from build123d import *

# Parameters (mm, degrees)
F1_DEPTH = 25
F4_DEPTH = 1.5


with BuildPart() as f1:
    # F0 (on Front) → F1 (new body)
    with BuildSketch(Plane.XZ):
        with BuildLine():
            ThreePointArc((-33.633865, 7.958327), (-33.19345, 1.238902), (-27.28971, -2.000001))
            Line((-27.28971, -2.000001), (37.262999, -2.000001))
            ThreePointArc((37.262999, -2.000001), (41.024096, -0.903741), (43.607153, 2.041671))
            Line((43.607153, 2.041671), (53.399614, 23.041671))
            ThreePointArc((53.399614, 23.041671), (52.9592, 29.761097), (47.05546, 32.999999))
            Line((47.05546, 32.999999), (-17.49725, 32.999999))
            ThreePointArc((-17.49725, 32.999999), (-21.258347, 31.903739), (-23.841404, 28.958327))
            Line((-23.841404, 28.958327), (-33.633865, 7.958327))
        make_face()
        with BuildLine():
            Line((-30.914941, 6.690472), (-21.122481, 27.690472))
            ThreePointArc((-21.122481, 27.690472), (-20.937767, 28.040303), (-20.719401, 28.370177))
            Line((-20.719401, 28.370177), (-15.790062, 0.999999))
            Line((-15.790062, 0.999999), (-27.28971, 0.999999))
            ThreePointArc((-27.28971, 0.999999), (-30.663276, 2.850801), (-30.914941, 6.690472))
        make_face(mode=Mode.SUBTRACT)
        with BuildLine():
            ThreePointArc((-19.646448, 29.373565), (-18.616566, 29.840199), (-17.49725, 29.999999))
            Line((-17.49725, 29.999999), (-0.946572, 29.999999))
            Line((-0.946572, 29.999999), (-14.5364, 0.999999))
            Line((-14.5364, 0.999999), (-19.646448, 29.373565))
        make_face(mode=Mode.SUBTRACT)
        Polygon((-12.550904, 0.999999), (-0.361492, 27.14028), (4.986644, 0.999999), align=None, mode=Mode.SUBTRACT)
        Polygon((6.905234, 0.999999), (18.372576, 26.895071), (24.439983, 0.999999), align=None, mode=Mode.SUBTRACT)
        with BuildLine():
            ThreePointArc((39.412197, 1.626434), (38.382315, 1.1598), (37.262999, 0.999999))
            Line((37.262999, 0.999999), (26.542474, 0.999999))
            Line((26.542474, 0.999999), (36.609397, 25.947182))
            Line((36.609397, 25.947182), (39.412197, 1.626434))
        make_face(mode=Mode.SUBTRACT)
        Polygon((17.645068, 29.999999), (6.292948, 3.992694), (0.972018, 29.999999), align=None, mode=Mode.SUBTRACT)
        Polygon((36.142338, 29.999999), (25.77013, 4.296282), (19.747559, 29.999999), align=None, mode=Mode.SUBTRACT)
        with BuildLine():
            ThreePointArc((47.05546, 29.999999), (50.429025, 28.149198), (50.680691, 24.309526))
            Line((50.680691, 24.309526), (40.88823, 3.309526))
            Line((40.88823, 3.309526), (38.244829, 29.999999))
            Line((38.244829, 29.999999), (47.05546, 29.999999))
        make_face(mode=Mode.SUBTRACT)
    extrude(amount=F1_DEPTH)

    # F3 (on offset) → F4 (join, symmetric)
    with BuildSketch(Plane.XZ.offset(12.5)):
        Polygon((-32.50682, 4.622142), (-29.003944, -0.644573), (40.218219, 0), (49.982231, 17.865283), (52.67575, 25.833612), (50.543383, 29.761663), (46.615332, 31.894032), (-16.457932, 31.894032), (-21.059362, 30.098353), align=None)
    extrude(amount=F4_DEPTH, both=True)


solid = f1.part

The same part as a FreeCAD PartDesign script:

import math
import FreeCAD as App
import Part
import Sketcher
Q = App.Units.Quantity


def add_polygon(sketch, points):
    """Adds a closed chain of lines whose ends are joined by coincident constraints."""
    first, n = sketch.GeometryCount, len(points)
    for a, b in zip(points, points[1:] + points[:1]):
        sketch.addGeometry(Part.LineSegment(App.Vector(*a, 0), App.Vector(*b, 0)), False)
    for i in range(n):
        sketch.addConstraint(Sketcher.Constraint("Coincident", first + i, 2, first + (i + 1) % n, 1))

doc = App.newDocument("Part")
body = doc.addObject("PartDesign::Body", "Body")

sketch1 = body.newObject("Sketcher::SketchObject", "Sketch")
sketch1.AttachmentSupport = (doc.getObject("XZ_Plane"), [""])
sketch1.MapMode = "FlatFace"
sketch1.addGeometry(Part.ArcOfCircle(Part.Circle(App.Vector(-27.3, 5, 0), App.Vector(0, 0, 1), 7), math.radians(155), math.radians(270)), False)
sketch1.addGeometry(Part.LineSegment(App.Vector(-27.3, -2, 0), App.Vector(37.3, -2, 0)), False)
sketch1.addGeometry(Part.ArcOfCircle(Part.Circle(App.Vector(37.3, 5, 0), App.Vector(0, 0, 1), 7), math.radians(-90), math.radians(-25)), False)
sketch1.addGeometry(Part.LineSegment(App.Vector(43.6, 2, 0), App.Vector(53.4, 23, 0)), False)
sketch1.addGeometry(Part.ArcOfCircle(Part.Circle(App.Vector(47.1, 26, 0), App.Vector(0, 0, 1), 7), math.radians(-25), math.radians(90)), False)
sketch1.addGeometry(Part.LineSegment(App.Vector(47.1, 33, 0), App.Vector(-17.5, 33, 0)), False)
sketch1.addGeometry(Part.ArcOfCircle(Part.Circle(App.Vector(-17.5, 26, 0), App.Vector(0, 0, 1), 7), math.radians(90), math.radians(155)), False)
sketch1.addGeometry(Part.LineSegment(App.Vector(-23.8, 29, 0), App.Vector(-33.6, 8, 0)), False)
sketch1.addGeometry(Part.ArcOfCircle(Part.Circle(App.Vector(-27.3, 5, 0), App.Vector(0, 0, 1), 4), math.radians(155), math.radians(270)), False)
sketch1.addGeometry(Part.LineSegment(App.Vector(-30.9, 6.7, 0), App.Vector(-21.1, 27.7, 0)), False)
sketch1.addGeometry(Part.ArcOfCircle(Part.Circle(App.Vector(-17.5, 26, 0), App.Vector(0, 0, 1), 4), math.radians(143.66), math.radians(155)), False)
sketch1.addGeometry(Part.LineSegment(App.Vector(-20.7, 28.4, 0), App.Vector(-15.8, 1, 0)), False)
sketch1.addGeometry(Part.LineSegment(App.Vector(-15.8, 1, 0), App.Vector(-27.3, 1, 0)), False)
add_polygon(sketch1, [(5, 1), (-12.6, 1), (-0.4, 27.1)])
add_polygon(sketch1, [(24.4, 1), (6.9, 1), (18.4, 26.9)])
sketch1.addGeometry(Part.LineSegment(App.Vector(36.6, 25.9, 0), App.Vector(39.4, 1.6, 0)), False)
sketch1.addGeometry(Part.ArcOfCircle(Part.Circle(App.Vector(37.3, 5, 0), App.Vector(0, 0, 1), 4), math.radians(-90), math.radians(-57)), False)
sketch1.addGeometry(Part.LineSegment(App.Vector(37.3, 1, 0), App.Vector(26.5, 1, 0)), False)
sketch1.addGeometry(Part.LineSegment(App.Vector(26.5, 1, 0), App.Vector(36.6, 25.9, 0)), False)
sketch1.addGeometry(Part.LineSegment(App.Vector(-14.5, 1, 0), App.Vector(-19.6, 29.4, 0)), False)
sketch1.addGeometry(Part.ArcOfCircle(Part.Circle(App.Vector(-17.5, 26, 0), App.Vector(0, 0, 1), 4), math.radians(90), math.radians(123)), False)
sketch1.addGeometry(Part.LineSegment(App.Vector(-17.5, 30, 0), App.Vector(-0.9, 30, 0)), False)
sketch1.addGeometry(Part.LineSegment(App.Vector(-0.9, 30, 0), App.Vector(-14.5, 1, 0)), False)
add_polygon(sketch1, [(1, 30), (17.6, 30), (6.3, 4)])
add_polygon(sketch1, [(19.7, 30), (36.1, 30), (25.8, 4.3)])
sketch1.addGeometry(Part.LineSegment(App.Vector(38.2, 30, 0), App.Vector(47.1, 30, 0)), False)
sketch1.addGeometry(Part.ArcOfCircle(Part.Circle(App.Vector(47.1, 26, 0), App.Vector(0, 0, 1), 4), math.radians(-25), math.radians(90)), False)
sketch1.addGeometry(Part.LineSegment(App.Vector(50.7, 24.3, 0), App.Vector(40.9, 3.3, 0)), False)
sketch1.addGeometry(Part.LineSegment(App.Vector(40.9, 3.3, 0), App.Vector(38.2, 30, 0)), False)
sketch1.addConstraint(Sketcher.Constraint("Tangent", 0, 2, 1, 1))
sketch1.addConstraint(Sketcher.Constraint("Tangent", 1, 2, 2, 1))
sketch1.addConstraint(Sketcher.Constraint("Tangent", 2, 2, 3, 1))
sketch1.addConstraint(Sketcher.Constraint("Tangent", 3, 2, 4, 1))
sketch1.addConstraint(Sketcher.Constraint("Tangent", 4, 2, 5, 1))
sketch1.addConstraint(Sketcher.Constraint("Tangent", 5, 2, 6, 1))
sketch1.addConstraint(Sketcher.Constraint("Tangent", 6, 2, 7, 1))
sketch1.addConstraint(Sketcher.Constraint("Tangent", 7, 2, 0, 1))
sketch1.addConstraint(Sketcher.Constraint("Tangent", 8, 1, 9, 1))
sketch1.addConstraint(Sketcher.Constraint("Tangent", 9, 2, 10, 2))
sketch1.addConstraint(Sketcher.Constraint("Coincident", 10, 1, 11, 1))
sketch1.addConstraint(Sketcher.Constraint("Coincident", 11, 2, 12, 1))
sketch1.addConstraint(Sketcher.Constraint("Tangent", 12, 2, 8, 2))
sketch1.addConstraint(Sketcher.Constraint("Coincident", 19, 2, 20, 2))
sketch1.addConstraint(Sketcher.Constraint("Tangent", 20, 1, 21, 1))
sketch1.addConstraint(Sketcher.Constraint("Coincident", 21, 2, 22, 1))
sketch1.addConstraint(Sketcher.Constraint("Coincident", 22, 2, 19, 1))
sketch1.addConstraint(Sketcher.Constraint("Coincident", 23, 2, 24, 2))
sketch1.addConstraint(Sketcher.Constraint("Tangent", 24, 1, 25, 1))
sketch1.addConstraint(Sketcher.Constraint("Coincident", 25, 2, 26, 1))
sketch1.addConstraint(Sketcher.Constraint("Coincident", 26, 2, 23, 1))
sketch1.addConstraint(Sketcher.Constraint("Tangent", 33, 2, 34, 2))
sketch1.addConstraint(Sketcher.Constraint("Tangent", 34, 1, 35, 1))
sketch1.addConstraint(Sketcher.Constraint("Coincident", 35, 2, 36, 1))
sketch1.addConstraint(Sketcher.Constraint("Coincident", 36, 2, 33, 1))
sketch1.addConstraint(Sketcher.Constraint("Horizontal", 1))
sketch1.addConstraint(Sketcher.Constraint("Horizontal", 5))
sketch1.addConstraint(Sketcher.Constraint("Horizontal", 12))
sketch1.addConstraint(Sketcher.Constraint("Horizontal", 13))
sketch1.addConstraint(Sketcher.Constraint("Horizontal", 16))
sketch1.addConstraint(Sketcher.Constraint("Horizontal", 21))
sketch1.addConstraint(Sketcher.Constraint("Horizontal", 25))
sketch1.addConstraint(Sketcher.Constraint("Horizontal", 27))
sketch1.addConstraint(Sketcher.Constraint("Horizontal", 30))
sketch1.addConstraint(Sketcher.Constraint("Horizontal", 33))
sketch1.addConstraint(Sketcher.Constraint("Coincident", 8, 3, 0, 3))
sketch1.addConstraint(Sketcher.Constraint("Coincident", 20, 3, 2, 3))
sketch1.addConstraint(Sketcher.Constraint("Coincident", 34, 3, 4, 3))
sketch1.addConstraint(Sketcher.Constraint("Equal", 0, 2))
sketch1.addConstraint(Sketcher.Constraint("Equal", 2, 4))
sketch1.addConstraint(Sketcher.Constraint("Equal", 4, 6))
sketch1.addConstraint(Sketcher.Constraint("Equal", 8, 20))
sketch1.addConstraint(Sketcher.Constraint("Equal", 20, 34))
sketch1.addConstraint(Sketcher.Constraint("Parallel", 3, 7))
sketch1.addConstraint(Sketcher.Constraint("Parallel", 7, 9))
sketch1.addConstraint(Sketcher.Constraint("Parallel", 9, 14))
sketch1.addConstraint(Sketcher.Constraint("Parallel", 11, 23))
sketch1.addConstraint(Sketcher.Constraint("Parallel", 15, 29))
sketch1.addConstraint(Sketcher.Constraint("Parallel", 22, 31))
sketch1.addConstraint(Sketcher.Constraint("Parallel", 18, 32))
sketch1.addConstraint(Sketcher.Constraint("Parallel", 14, 35))
sketch1.addConstraint(Sketcher.Constraint("Horizontal", 12, 2, 13, 2))
sketch1.addConstraint(Sketcher.Constraint("Horizontal", 15, 2, 16, 2))
sketch1.addConstraint(Sketcher.Constraint("Horizontal", 21, 2, 26, 2))
sketch1.addConstraint(Sketcher.Constraint("Horizontal", 25, 2, 27, 2))
sketch1.addConstraint(Sketcher.Constraint("Horizontal", 29, 2, 30, 2))
sketch1.addConstraint(Sketcher.Constraint("Horizontal", 32, 2, 33, 2))
sketch1.addConstraint(Sketcher.Constraint("Vertical", 5, 2, 24, 1))
sketch1.addConstraint(Sketcher.Constraint("Equal", 7, 9))
sketch1.addConstraint(Sketcher.Constraint("Equal", 9, 35))
sketch1.addConstraint(Sketcher.Constraint("Radius", 0, Q("7.000001 mm")))
sketch1.addConstraint(Sketcher.Constraint("Radius", 8, Q("4 mm")))
sketch1.addConstraint(Sketcher.Constraint("Angle", 3, Q("65 deg")))
sketch1.addConstraint(Sketcher.Constraint("DistanceY", -1, 1, 0, 3, Q("5 mm")))
sketch1.addConstraint(Sketcher.Constraint("DistanceY", -1, 1, 4, 3, Q("26 mm")))
sketch1.addConstraint(Sketcher.Constraint("DistanceX", -1, 1, 2, 3, Q("37.262999 mm")))
sketch1.addConstraint(Sketcher.Constraint("Radius", 10, Q("4.000055 mm")))
sketch1.addConstraint(Sketcher.Constraint("Radius", 24, Q("3.999986 mm")))
sketch1.addConstraint(Sketcher.Constraint("DistanceX", 1, 1, 1, 2, Q("64.552709 mm")))
sketch1.addConstraint(Sketcher.Constraint("DistanceX", 13, 2, 13, 1, Q("17.537548 mm")))
sketch1.addConstraint(Sketcher.Constraint("DistanceX", 16, 2, 16, 1, Q("17.534749 mm")))
sketch1.addConstraint(Sketcher.Constraint("DistanceX", 25, 1, 25, 2, Q("16.550678 mm")))
sketch1.addConstraint(Sketcher.Constraint("DistanceX", 27, 1, 27, 2, Q("16.67305 mm")))
sketch1.addConstraint(Sketcher.Constraint("DistanceX", 30, 1, 30, 2, Q("16.394779 mm")))
sketch1.addConstraint(Sketcher.Constraint("DistanceX", 33, 1, 33, 2, Q("8.810631 mm")))
sketch1.addConstraint(Sketcher.Constraint("DistanceX", 10, 1, -1, 1, Q("20.719401 mm")))
sketch1.addConstraint(Sketcher.Constraint("DistanceX", 26, 2, -1, 1, Q("14.5364 mm")))
sketch1.addConstraint(Sketcher.Constraint("DistanceX", 20, 3, 19, 2, Q("2.149199 mm")))
sketch1.addConstraint(Sketcher.Constraint("DistanceX", 23, 2, 6, 3, Q("2.149198 mm")))
sketch1.addConstraint(Sketcher.Constraint("Distance", 14, Q("28.842608 mm")))
sketch1.addConstraint(Sketcher.Constraint("Distance", 17, Q("28.32057 mm")))
sketch1.addConstraint(Sketcher.Constraint("Distance", 29, Q("26.546039 mm")))
sketch1.addConstraint(Sketcher.Constraint("Distance", 31, Q("27.717571 mm")))
sketch1.addConstraint(Sketcher.Constraint("DistanceX", 21, 2, 21, 1, Q("10.720525 mm")))
sketch1.addConstraint(Sketcher.Constraint("DistanceY", -1, 1, 17, 2, Q("26.895071 mm")))
sketch1.addConstraint(Sketcher.Constraint("DistanceX", -1, 1, 29, 2, Q("0.972018 mm")))
sketch1.addConstraint(Sketcher.Constraint("DistanceX", -1, 1, 30, 2, Q("36.142338 mm")))
sketch1.addConstraint(Sketcher.Constraint("DistanceX", 11, 2, 13, 2, Q("3.239158 mm")))
sketch1.addConstraint(Sketcher.Constraint("DistanceX", 15, 2, 16, 2, Q("1.91859 mm")))
sketch1.addConstraint(Sketcher.Constraint("DistanceY", 3, 2, 22, 2, Q("2.905511 mm")))
pad1 = body.newObject("PartDesign::Pad", "Pad")
pad1.Profile = sketch1
pad1.Length = 25

sketch2 = body.newObject("Sketcher::SketchObject", "Sketch001")
sketch2.AttachmentSupport = (doc.getObject("XZ_Plane"), [""])
sketch2.MapMode = "FlatFace"
sketch2.AttachmentOffset = App.Placement(App.Vector(0, 0, 12.5), App.Rotation())
add_polygon(sketch2, [(-32.5, 4.6), (-29, -0.6), (40.2, 0), (50, 17.9), (52.7, 25.8), (50.5, 29.8), (46.6, 31.9), (-16.5, 31.9), (-21.1, 30.1)])
sketch2.addConstraint(Sketcher.Constraint("Horizontal", 6))
sketch2.addConstraint(Sketcher.Constraint("PointOnObject", 1, 2, -1))
sketch2.addConstraint(Sketcher.Constraint("Equal", 4, 5))
sketch2.addConstraint(Sketcher.Constraint("DistanceX", 5, 2, 2, 2, Q("3.366899 mm")))
sketch2.addConstraint(Sketcher.Constraint("Distance", 0, Q("6.325222 mm")))
sketch2.addConstraint(Sketcher.Constraint("Distance", 3, Q("8.411261 mm")))
sketch2.addConstraint(Sketcher.Constraint("Distance", 8, Q("27.929941 mm")))
sketch2.addConstraint(Sketcher.Constraint("DistanceX", 6, 2, 6, 1, Q("63.073264 mm")))
sketch2.addConstraint(Sketcher.Constraint("DistanceX", -1, 1, 1, 2, Q("40.218219 mm")))
sketch2.addConstraint(Sketcher.Constraint("DistanceX", -1, 1, 2, 2, Q("49.982231 mm")))
sketch2.addConstraint(Sketcher.Constraint("DistanceX", -1, 1, 3, 2, Q("52.67575 mm")))
sketch2.addConstraint(Sketcher.Constraint("DistanceY", -1, 1, 3, 2, Q("25.833612 mm")))
sketch2.addConstraint(Sketcher.Constraint("DistanceY", -1, 1, 5, 2, Q("31.894032 mm")))
sketch2.addConstraint(Sketcher.Constraint("DistanceX", 7, 2, -1, 1, Q("21.059362 mm")))
sketch2.addConstraint(Sketcher.Constraint("DistanceX", 8, 2, -1, 1, Q("32.50682 mm")))
sketch2.addConstraint(Sketcher.Constraint("DistanceY", 3, 2, 4, 2, Q("3.928051 mm")))
sketch2.addConstraint(Sketcher.Constraint("DistanceY", 7, 2, 6, 2, Q("1.795679 mm")))
sketch2.addConstraint(Sketcher.Constraint("Distance", 1, Q("69.225164 mm")))
pad2 = body.newObject("PartDesign::Pad", "Pad001")
pad2.Profile = sketch2
pad2.Length = 3
pad2.Midplane = True

doc.recompute()
